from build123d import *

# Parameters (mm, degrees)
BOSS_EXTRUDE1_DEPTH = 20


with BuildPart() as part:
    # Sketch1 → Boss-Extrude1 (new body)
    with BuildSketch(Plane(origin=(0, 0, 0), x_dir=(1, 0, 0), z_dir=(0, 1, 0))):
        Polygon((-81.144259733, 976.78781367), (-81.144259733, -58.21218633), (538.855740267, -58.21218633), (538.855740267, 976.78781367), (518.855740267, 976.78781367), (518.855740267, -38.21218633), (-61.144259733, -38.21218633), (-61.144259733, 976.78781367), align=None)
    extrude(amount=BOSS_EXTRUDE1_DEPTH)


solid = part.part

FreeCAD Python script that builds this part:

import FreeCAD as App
import Part
import Sketcher

V = App.Vector
Q = App.Units.Quantity


def add_polygon(sketch, points):
    """Adds a closed chain of lines whose ends are joined by coincident constraints."""
    first, n = sketch.GeometryCount, len(points)
    for a, b in zip(points, points[1:] + points[:1]):
        sketch.addGeometry(Part.LineSegment(App.Vector(*a, 0), App.Vector(*b, 0)), False)
    for i in range(n):
        sketch.addConstraint(Sketcher.Constraint("Coincident", first + i, 2, first + (i + 1) % n, 1))

doc = App.newDocument("Part")
body = doc.addObject("PartDesign::Body", "Body")

# Sketch on XZ plane
sketch1 = doc.addObject("Sketcher::SketchObject", "Sketch")
body.addObject(sketch1)
sketch1.AttachmentSupport = (doc.XZ_Plane, [""])
sketch1.MapMode = "FlatFace"
add_polygon(sketch1, [(-81, -977), (-81, 58), (539, 58), (539, -977), (519, -977), (519, 38), (-61, 38), (-61, -977)])  # lines 0-7
sketch1.addConstraint([
    Sketcher.Constraint("Vertical", 0),
    Sketcher.Constraint("Horizontal", 1),
    Sketcher.Constraint("Vertical", 2),
    Sketcher.Constraint("Horizontal", 3),
    Sketcher.Constraint("Vertical", 4),
    Sketcher.Constraint("Horizontal", 5),
    Sketcher.Constraint("Vertical", 6),
    Sketcher.Constraint("Horizontal", 7),
    Sketcher.Constraint("Horizontal", 3, 2, 6, 2),
    Sketcher.Constraint("Equal", 3, 7),
    Sketcher.Constraint("DistanceX", 1, 1, 1, 2, Q("620 mm")),
    Sketcher.Constraint("DistanceX", 3, 2, 3, 1, Q("20 mm")),
    Sketcher.Constraint("DistanceY", 0, 1, 0, 2, Q("1035 mm")),
    Sketcher.Constraint("DistanceY", 4, 1, 4, 2, Q("1015 mm")),
    Sketcher.Constraint("DistanceX", 0, 2, -1, 1, Q("81.14426 mm")),
    Sketcher.Constraint("DistanceY", -1, 1, 0, 2, Q("58.212186 mm")),
])
pad1 = doc.addObject("PartDesign::Pad", "Pad")
body.addObject(pad1)
pad1.Profile = sketch1
pad1.Length = 20
pad1.Reversed = True

doc.recompute()
